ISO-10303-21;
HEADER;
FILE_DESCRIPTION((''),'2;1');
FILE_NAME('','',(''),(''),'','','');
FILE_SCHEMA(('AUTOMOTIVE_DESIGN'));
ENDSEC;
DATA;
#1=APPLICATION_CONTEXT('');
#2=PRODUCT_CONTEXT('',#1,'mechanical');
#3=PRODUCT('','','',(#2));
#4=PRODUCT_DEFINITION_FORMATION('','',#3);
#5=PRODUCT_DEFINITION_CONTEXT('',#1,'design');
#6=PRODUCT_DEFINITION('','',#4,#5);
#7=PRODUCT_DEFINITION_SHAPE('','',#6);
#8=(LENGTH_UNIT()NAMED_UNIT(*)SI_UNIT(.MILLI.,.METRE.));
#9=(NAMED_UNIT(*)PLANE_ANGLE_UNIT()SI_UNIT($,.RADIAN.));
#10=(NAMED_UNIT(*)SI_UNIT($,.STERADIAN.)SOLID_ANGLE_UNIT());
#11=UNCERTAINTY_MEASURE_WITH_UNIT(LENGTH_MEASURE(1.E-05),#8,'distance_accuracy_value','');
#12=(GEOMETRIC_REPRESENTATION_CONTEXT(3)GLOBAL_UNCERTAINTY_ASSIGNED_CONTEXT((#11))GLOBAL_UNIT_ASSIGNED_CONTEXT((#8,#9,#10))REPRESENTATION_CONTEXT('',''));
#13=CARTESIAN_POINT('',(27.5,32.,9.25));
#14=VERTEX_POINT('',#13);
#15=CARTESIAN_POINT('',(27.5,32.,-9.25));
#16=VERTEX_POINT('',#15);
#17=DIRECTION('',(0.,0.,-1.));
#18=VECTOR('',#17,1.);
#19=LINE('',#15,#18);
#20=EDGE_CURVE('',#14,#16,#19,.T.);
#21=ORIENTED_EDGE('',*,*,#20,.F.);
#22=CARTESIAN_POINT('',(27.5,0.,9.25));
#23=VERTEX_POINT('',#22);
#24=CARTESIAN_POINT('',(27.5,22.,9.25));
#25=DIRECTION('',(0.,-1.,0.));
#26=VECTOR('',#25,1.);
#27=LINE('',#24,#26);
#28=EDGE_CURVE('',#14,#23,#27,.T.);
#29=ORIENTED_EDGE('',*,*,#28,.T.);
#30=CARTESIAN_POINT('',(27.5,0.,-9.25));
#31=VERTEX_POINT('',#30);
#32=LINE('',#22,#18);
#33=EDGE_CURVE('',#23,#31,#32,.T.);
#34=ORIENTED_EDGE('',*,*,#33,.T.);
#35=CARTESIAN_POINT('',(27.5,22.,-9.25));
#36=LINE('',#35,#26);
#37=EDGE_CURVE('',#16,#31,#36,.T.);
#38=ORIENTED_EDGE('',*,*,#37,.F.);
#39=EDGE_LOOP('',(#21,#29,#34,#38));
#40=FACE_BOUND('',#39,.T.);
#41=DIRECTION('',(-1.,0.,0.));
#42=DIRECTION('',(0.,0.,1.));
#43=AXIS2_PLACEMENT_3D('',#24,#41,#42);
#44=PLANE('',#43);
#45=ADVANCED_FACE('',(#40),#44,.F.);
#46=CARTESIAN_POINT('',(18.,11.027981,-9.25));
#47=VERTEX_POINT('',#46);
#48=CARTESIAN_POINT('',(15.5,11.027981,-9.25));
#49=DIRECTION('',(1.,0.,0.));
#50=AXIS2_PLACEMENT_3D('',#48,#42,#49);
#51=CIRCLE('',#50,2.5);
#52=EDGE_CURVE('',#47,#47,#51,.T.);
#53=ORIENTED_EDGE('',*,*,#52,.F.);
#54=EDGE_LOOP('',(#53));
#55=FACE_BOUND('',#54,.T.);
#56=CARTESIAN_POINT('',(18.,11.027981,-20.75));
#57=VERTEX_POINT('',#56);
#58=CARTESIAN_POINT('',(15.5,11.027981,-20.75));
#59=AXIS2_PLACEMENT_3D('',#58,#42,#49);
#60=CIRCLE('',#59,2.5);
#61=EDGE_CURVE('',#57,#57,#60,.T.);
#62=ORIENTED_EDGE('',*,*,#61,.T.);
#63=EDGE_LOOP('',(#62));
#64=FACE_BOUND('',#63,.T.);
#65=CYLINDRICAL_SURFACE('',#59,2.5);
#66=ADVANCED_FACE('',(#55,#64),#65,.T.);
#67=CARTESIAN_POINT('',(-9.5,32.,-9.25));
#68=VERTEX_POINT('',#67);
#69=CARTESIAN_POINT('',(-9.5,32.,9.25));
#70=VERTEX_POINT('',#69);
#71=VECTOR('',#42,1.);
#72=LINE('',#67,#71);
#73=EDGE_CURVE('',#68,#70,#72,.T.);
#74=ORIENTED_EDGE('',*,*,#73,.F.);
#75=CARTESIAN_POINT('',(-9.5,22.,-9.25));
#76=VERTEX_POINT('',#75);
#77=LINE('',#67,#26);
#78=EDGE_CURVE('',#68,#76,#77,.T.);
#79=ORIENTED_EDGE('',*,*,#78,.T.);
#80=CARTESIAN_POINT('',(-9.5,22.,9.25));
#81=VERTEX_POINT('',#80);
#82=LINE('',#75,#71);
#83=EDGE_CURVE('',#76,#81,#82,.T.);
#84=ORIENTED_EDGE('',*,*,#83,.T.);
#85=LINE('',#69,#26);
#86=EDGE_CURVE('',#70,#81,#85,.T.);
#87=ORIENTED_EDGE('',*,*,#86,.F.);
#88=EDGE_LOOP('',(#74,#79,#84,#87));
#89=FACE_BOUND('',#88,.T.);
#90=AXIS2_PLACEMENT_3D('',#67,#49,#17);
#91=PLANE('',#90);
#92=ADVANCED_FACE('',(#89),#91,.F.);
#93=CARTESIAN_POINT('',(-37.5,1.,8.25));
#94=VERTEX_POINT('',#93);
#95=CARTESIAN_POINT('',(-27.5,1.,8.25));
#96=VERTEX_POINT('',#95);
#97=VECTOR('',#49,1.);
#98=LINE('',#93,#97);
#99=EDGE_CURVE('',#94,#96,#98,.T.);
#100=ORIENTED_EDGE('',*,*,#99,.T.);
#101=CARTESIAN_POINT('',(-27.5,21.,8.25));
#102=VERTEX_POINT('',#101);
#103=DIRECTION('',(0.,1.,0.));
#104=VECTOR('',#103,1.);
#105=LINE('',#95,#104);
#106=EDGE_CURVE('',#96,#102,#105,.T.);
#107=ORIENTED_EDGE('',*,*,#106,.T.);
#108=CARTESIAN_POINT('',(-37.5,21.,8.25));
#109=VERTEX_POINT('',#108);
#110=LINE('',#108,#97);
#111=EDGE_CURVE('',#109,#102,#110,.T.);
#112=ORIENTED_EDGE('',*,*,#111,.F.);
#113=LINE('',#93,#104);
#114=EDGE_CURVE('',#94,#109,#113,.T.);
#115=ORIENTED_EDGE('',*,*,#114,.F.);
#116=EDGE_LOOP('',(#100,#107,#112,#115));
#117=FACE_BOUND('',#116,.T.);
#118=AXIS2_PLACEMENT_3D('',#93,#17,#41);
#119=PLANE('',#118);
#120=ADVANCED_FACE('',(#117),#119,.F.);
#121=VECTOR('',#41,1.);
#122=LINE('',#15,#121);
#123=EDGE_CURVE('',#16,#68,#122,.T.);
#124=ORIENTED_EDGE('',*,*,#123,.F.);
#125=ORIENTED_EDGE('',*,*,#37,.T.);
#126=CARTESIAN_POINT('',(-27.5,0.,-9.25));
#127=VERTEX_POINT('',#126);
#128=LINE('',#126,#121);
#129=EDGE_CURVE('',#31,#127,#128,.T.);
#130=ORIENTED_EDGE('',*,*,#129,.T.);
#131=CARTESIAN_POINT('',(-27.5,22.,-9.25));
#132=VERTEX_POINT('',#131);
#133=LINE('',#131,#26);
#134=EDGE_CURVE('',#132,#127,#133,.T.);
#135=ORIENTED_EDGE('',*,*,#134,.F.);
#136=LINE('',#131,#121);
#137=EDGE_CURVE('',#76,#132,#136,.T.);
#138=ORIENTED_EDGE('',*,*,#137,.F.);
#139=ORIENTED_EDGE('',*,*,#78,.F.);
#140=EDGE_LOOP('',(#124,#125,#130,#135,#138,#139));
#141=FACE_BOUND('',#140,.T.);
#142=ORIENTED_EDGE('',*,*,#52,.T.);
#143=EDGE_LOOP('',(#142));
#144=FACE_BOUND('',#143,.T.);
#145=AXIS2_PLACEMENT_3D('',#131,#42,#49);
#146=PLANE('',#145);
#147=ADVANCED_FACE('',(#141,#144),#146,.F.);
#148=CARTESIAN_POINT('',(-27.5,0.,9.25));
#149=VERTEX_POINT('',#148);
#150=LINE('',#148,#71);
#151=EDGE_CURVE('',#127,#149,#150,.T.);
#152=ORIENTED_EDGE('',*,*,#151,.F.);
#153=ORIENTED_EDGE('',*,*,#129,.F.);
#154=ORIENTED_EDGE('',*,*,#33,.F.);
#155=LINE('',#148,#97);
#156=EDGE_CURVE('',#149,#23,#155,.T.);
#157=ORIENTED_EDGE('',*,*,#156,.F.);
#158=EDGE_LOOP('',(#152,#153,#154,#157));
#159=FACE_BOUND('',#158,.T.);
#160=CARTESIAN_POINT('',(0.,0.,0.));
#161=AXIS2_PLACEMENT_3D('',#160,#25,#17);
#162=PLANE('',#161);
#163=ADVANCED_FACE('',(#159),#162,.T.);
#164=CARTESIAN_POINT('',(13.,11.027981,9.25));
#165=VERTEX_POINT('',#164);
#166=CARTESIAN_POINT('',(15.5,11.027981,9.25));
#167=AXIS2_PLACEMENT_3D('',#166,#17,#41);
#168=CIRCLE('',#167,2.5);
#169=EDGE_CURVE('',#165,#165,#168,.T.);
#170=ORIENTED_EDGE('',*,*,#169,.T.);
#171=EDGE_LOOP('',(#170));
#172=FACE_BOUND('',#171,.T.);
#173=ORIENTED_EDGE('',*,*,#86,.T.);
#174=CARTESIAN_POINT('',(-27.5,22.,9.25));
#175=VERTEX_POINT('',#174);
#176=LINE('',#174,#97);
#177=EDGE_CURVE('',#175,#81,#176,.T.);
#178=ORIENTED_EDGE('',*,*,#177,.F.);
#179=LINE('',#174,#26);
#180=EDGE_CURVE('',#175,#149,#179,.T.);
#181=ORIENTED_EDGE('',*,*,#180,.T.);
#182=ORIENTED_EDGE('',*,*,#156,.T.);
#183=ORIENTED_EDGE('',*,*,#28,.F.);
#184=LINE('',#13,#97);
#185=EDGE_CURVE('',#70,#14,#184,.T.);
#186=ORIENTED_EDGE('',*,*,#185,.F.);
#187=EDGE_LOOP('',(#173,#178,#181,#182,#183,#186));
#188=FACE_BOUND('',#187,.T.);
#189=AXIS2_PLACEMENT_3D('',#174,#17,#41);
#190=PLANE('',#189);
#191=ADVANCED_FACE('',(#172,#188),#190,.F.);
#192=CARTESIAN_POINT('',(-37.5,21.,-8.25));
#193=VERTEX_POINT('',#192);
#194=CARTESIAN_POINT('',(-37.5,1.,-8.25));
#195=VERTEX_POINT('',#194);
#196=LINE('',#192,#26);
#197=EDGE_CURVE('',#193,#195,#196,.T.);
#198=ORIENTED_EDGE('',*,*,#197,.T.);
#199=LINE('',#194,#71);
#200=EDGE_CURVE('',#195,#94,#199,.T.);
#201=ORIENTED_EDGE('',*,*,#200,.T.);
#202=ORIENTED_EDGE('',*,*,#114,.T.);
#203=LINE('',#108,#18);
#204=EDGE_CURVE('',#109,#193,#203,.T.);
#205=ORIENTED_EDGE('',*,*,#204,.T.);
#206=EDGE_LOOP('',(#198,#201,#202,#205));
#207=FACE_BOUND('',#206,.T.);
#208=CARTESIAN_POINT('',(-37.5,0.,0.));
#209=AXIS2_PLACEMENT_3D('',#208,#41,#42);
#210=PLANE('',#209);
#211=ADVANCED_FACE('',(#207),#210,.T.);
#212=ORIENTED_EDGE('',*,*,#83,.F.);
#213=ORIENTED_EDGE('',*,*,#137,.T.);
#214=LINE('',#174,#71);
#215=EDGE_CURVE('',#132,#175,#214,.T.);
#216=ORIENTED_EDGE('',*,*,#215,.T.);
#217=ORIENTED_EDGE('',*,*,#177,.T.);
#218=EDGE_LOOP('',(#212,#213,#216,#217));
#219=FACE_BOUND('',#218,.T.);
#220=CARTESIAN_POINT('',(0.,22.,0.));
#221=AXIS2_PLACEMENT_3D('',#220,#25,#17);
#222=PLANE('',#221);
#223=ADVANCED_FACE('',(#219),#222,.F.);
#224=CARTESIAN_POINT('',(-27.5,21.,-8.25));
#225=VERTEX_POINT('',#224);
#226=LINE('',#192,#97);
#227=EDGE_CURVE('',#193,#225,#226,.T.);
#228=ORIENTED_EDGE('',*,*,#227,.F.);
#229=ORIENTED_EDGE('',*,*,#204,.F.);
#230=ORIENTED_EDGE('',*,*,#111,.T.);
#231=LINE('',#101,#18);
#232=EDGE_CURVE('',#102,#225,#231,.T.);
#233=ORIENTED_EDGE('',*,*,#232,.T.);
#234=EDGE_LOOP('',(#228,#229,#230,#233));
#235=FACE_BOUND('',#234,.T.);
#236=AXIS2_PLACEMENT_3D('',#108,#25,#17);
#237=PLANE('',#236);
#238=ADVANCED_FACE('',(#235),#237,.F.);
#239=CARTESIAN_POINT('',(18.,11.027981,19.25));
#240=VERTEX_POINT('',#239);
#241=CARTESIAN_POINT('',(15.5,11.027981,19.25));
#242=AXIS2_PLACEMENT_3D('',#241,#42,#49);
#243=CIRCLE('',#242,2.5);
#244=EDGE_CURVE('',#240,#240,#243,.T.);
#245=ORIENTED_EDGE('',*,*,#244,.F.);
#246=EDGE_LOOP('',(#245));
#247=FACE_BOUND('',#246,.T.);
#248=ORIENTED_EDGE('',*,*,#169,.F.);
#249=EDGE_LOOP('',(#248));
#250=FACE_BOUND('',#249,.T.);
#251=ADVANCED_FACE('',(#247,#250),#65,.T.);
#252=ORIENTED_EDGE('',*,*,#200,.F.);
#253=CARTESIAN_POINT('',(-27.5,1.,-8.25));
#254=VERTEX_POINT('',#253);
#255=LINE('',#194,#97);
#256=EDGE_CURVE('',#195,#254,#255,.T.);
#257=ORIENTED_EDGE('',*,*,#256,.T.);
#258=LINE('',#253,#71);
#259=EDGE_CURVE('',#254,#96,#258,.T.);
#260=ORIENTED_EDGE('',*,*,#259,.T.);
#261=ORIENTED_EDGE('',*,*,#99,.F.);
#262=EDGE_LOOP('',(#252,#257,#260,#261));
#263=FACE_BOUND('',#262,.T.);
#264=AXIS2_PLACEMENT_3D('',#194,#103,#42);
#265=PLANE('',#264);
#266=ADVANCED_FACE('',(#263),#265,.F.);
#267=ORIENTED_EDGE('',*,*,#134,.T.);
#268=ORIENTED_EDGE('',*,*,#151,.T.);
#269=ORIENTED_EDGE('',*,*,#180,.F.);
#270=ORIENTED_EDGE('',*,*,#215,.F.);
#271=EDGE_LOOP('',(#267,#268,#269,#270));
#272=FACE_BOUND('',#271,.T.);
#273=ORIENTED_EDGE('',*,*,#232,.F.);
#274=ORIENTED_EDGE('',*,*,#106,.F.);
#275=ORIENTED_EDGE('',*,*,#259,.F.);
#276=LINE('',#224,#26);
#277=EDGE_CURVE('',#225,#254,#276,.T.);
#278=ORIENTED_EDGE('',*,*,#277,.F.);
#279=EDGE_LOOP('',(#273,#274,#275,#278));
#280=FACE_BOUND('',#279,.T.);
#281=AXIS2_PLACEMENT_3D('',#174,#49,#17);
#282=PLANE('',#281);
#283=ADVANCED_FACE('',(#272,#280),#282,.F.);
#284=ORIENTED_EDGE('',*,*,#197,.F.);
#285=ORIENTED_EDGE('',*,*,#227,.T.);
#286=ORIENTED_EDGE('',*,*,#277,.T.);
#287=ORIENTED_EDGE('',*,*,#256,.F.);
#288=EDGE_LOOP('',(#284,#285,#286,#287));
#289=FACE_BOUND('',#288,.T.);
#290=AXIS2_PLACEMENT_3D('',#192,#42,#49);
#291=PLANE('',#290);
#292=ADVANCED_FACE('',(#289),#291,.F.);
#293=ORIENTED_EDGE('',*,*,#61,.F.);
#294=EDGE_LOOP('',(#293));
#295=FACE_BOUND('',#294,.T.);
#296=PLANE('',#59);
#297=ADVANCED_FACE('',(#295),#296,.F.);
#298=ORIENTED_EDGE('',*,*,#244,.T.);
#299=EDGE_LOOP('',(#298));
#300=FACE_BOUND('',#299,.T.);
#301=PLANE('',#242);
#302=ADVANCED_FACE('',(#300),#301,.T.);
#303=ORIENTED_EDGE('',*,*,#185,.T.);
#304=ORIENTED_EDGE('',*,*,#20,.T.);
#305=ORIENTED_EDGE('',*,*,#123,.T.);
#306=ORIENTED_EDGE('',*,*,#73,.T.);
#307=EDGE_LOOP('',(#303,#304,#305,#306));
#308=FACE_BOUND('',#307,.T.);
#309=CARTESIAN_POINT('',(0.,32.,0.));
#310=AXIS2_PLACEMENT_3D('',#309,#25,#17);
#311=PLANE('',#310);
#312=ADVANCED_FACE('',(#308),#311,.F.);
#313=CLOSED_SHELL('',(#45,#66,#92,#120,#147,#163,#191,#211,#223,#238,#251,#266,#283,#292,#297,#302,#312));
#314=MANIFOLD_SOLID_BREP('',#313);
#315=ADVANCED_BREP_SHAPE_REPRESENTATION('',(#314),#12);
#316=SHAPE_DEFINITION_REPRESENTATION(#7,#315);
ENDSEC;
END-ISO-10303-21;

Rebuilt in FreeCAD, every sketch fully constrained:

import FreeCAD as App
import Part
import Sketcher

doc = App.newDocument("Part")
body = doc.addObject("PartDesign::Body", "Body")

# Sketch on XZ plane
sketch1 = body.newObject("Sketcher::SketchObject", "Sketch")
sketch1.AttachmentSupport = (doc.getObject("XZ_Plane"), [""])
sketch1.MapMode = "FlatFace"
sketch1.addGeometry([
    Part.LineSegment(App.Vector(-28, -9, 0), App.Vector(-28, 9, 0)),
    Part.LineSegment(App.Vector(-28, 9, 0), App.Vector(28, 9, 0)),
    Part.LineSegment(App.Vector(28, 9, 0), App.Vector(28, -9, 0)),
    Part.LineSegment(App.Vector(28, -9, 0), App.Vector(-28, -9, 0)),
], False)
sketch1.addConstraint([
    Sketcher.Constraint("Coincident", 0, 2, 1, 1),
    Sketcher.Constraint("Coincident", 1, 2, 2, 1),
    Sketcher.Constraint("Coincident", 2, 2, 3, 1),
    Sketcher.Constraint("Coincident", 3, 2, 0, 1),
    Sketcher.Constraint("Vertical", 0),
    Sketcher.Constraint("Horizontal", 1),
    Sketcher.Constraint("Vertical", 2),
    Sketcher.Constraint("Horizontal", 3),
    Sketcher.Constraint("Symmetric", 0, 2, 2, 2, -1, 1),
    Sketcher.Constraint("DistanceX", 1, 1, 1, 2, 55.0),
    Sketcher.Constraint("DistanceY", 0, 1, 0, 2, 18.5),
])
pad1 = body.newObject("PartDesign::Pad", "Pad")
pad1.Profile = sketch1
pad1.Length = 22
pad1.Reversed = True

# Sketch on YZ plane
sketch2 = body.newObject("Sketcher::SketchObject", "Sketch001")
sketch2.AttachmentSupport = (doc.getObject("YZ_Plane"), [""])
sketch2.MapMode = "FlatFace"
sketch2.AttachmentOffset = App.Placement(App.Vector(0, 0, -27.5), App.Rotation())
sketch2.addGeometry([
    Part.LineSegment(App.Vector(21, -8, 0), App.Vector(1, -8, 0)),
    Part.LineSegment(App.Vector(1, -8, 0), App.Vector(1, 8, 0)),
    Part.LineSegment(App.Vector(1, 8, 0), App.Vector(21, 8, 0)),
    Part.LineSegment(App.Vector(21, 8, 0), App.Vector(21, -8, 0)),
], False)
sketch2.addConstraint([
    Sketcher.Constraint("Coincident", 0, 2, 1, 1),
    Sketcher.Constraint("Coincident", 1, 2, 2, 1),
    Sketcher.Constraint("Coincident", 2, 2, 3, 1),
    Sketcher.Constraint("Coincident", 3, 2, 0, 1),
    Sketcher.Constraint("Horizontal", 0),
    Sketcher.Constraint("Vertical", 1),
    Sketcher.Constraint("Horizontal", 2),
    Sketcher.Constraint("Vertical", 3),
    Sketcher.Constraint("DistanceX", 0, 2, 0, 1, 20.0),
    Sketcher.Constraint("DistanceY", 1, 1, 1, 2, 16.5),
    Sketcher.Constraint("DistanceX", -1, 1, 0, 2, 1.0),
    Sketcher.Constraint("DistanceY", 0, 2, -1, 1, 8.25),
])
pad2 = body.newObject("PartDesign::Pad", "Pad001")
pad2.Profile = sketch2
pad2.Length = 10
pad2.Reversed = True

# Sketch on XY plane
sketch3 = body.newObject("Sketcher::SketchObject", "Sketch002")
sketch3.AttachmentSupport = (doc.getObject("XY_Plane"), [""])
sketch3.MapMode = "FlatFace"
sketch3.AttachmentOffset = App.Placement(App.Vector(0, 0, 9.25), App.Rotation())
sketch3.addGeometry(Part.Circle(App.Vector(15.5, 11, 0), App.Vector(0, 0, 1), 2.5), False)
sketch3.addConstraint([
    Sketcher.Constraint("Diameter", 0, 5.0),
    Sketcher.Constraint("DistanceX", -1, 1, 0, 3, 15.5),
    Sketcher.Constraint("DistanceY", -1, 1, 0, 3, 11.027981),
])
pad3 = body.newObject("PartDesign::Pad", "Pad002")
pad3.Profile = sketch3
pad3.Type = "TwoLengths"
pad3.Length = 10
pad3.Length2 = 30

# Sketch on XZ plane
sketch4 = body.newObject("Sketcher::SketchObject", "Sketch003")
sketch4.AttachmentSupport = (doc.getObject("XZ_Plane"), [""])
sketch4.MapMode = "FlatFace"
sketch4.AttachmentOffset = App.Placement(App.Vector(0, 0, -22), App.Rotation())
sketch4.addGeometry([
    Part.LineSegment(App.Vector(-10, -9, 0), App.Vector(-10, 9, 0)),
    Part.LineSegment(App.Vector(-10, 9, 0), App.Vector(28, 9, 0)),
    Part.LineSegment(App.Vector(28, 9, 0), App.Vector(28, -9, 0)),
    Part.LineSegment(App.Vector(28, -9, 0), App.Vector(-10, -9, 0)),
], False)
sketch4.addConstraint([
    Sketcher.Constraint("Coincident", 0, 2, 1, 1),
    Sketcher.Constraint("Coincident", 1, 2, 2, 1),
    Sketcher.Constraint("Coincident", 2, 2, 3, 1),
    Sketcher.Constraint("Coincident", 3, 2, 0, 1),
    Sketcher.Constraint("Vertical", 0),
    Sketcher.Constraint("Horizontal", 1),
    Sketcher.Constraint("Vertical", 2),
    Sketcher.Constraint("Horizontal", 3),
    Sketcher.Constraint("DistanceX", 1, 1, 1, 2, 37.0),
    Sketcher.Constraint("DistanceY", 0, 1, 0, 2, 18.5),
    Sketcher.Constraint("DistanceX", 0, 2, -1, 1, 9.5),
    Sketcher.Constraint("DistanceY", -1, 1, 0, 2, 9.25),
])
pad4 = body.newObject("PartDesign::Pad", "Pad003")
pad4.Profile = sketch4
pad4.Length = 10
pad4.Reversed = True

doc.recompute()
